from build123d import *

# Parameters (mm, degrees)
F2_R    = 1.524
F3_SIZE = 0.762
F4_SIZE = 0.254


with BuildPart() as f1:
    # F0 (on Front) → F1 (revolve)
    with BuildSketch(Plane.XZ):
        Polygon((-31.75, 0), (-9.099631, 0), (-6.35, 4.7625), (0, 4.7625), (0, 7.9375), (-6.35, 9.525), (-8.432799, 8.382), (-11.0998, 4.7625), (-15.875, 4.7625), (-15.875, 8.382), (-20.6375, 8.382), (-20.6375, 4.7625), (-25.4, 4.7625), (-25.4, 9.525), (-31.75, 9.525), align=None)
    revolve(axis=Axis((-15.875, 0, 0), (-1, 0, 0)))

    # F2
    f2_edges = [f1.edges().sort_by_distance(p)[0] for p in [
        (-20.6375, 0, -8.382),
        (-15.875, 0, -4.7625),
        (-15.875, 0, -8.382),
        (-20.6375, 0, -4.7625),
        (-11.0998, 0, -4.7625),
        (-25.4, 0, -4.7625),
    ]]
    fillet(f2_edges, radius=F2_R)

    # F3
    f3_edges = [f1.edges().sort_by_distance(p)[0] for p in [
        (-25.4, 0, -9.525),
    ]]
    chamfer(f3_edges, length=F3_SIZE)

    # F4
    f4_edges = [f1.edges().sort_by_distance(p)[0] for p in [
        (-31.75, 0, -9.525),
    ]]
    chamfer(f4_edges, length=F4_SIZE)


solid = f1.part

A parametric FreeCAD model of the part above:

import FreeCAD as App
import Part
import Sketcher

V = App.Vector
Q = App.Units.Quantity


def edges_at(feature, points):
    """Names of the edges that pass closest to the given points."""
    edges = feature.Shape.Edges
    near = lambda p: min(range(len(edges)), key=lambda i: edges[i].distToShape(Part.Vertex(*p))[0])
    return sorted({f"Edge{near(p) + 1}" for p in points})


def add_polygon(sketch, points):
    """Adds a closed chain of lines whose ends are joined by coincident constraints."""
    first, n = sketch.GeometryCount, len(points)
    for a, b in zip(points, points[1:] + points[:1]):
        sketch.addGeometry(Part.LineSegment(App.Vector(*a, 0), App.Vector(*b, 0)), False)
    for i in range(n):
        sketch.addConstraint(Sketcher.Constraint("Coincident", first + i, 2, first + (i + 1) % n, 1))

doc = App.newDocument("Part")
body = doc.addObject("PartDesign::Body", "Body")

sketch1 = body.newObject("Sketcher::SketchObject", "Sketch")
sketch1.AttachmentSupport = (doc.getObject("XZ_Plane"), [""])
sketch1.MapMode = "FlatFace"
add_polygon(sketch1, [(-31.8, 0), (-9.1, 0), (-6.3, 4.8), (0, 4.8), (0, 7.9), (-6.3, 9.5), (-8.4, 8.4), (-11.1, 4.8), (-15.9, 4.8), (-15.9, 8.4), (-20.6, 8.4), (-20.6, 4.8), (-25.4, 4.8), (-25.4, 9.5), (-31.8, 9.5)])
sketch1.addConstraint(Sketcher.Constraint("Horizontal", 0))
sketch1.addConstraint(Sketcher.Constraint("Horizontal", 2))
sketch1.addConstraint(Sketcher.Constraint("Vertical", 3))
sketch1.addConstraint(Sketcher.Constraint("Horizontal", 7))
sketch1.addConstraint(Sketcher.Constraint("Vertical", 8))
sketch1.addConstraint(Sketcher.Constraint("Horizontal", 9))
sketch1.addConstraint(Sketcher.Constraint("Vertical", 10))
sketch1.addConstraint(Sketcher.Constraint("Horizontal", 11))
sketch1.addConstraint(Sketcher.Constraint("Vertical", 12))
sketch1.addConstraint(Sketcher.Constraint("Horizontal", 13))
sketch1.addConstraint(Sketcher.Constraint("Vertical", 14))
sketch1.addConstraint(Sketcher.Constraint("PointOnObject", 0, 2, -1))
sketch1.addConstraint(Sketcher.Constraint("PointOnObject", 2, 2, -2))
sketch1.addConstraint(Sketcher.Constraint("Horizontal", 2, 2, 6, 2))
sketch1.addConstraint(Sketcher.Constraint("Horizontal", 5, 2, 8, 2))
sketch1.addConstraint(Sketcher.Constraint("Horizontal", 7, 2, 10, 2))
sketch1.addConstraint(Sketcher.Constraint("Horizontal", 4, 2, 12, 2))
sketch1.addConstraint(Sketcher.Constraint("Vertical", 1, 2, 4, 2))
sketch1.addConstraint(Sketcher.Constraint("Equal", 9, 11))
sketch1.addConstraint(Sketcher.Constraint("Equal", 2, 13))
sketch1.addConstraint(Sketcher.Constraint("Equal", 11, 12))
sketch1.addConstraint(Sketcher.Constraint("DistanceX", 11, 2, -1, 1, Q("1 in")))
sketch1.addConstraint(Sketcher.Constraint("Angle", 1, Q("59.999997 deg")))
sketch1.addConstraint(Sketcher.Constraint("DistanceX", 2, 1, 2, 2, Q("0.25 in")))
sketch1.addConstraint(Sketcher.Constraint("DistanceX", 7, 2, 7, 1, Q("0.188 in")))
sketch1.addConstraint(Sketcher.Constraint("DistanceX", 9, 2, 9, 1, Q("0.1875 in")))
sketch1.addConstraint(Sketcher.Constraint("DistanceY", 3, 1, 3, 2, Q("0.125 in")))
sketch1.addConstraint(Sketcher.Constraint("DistanceY", 14, 2, 14, 1, Q("0.375 in")))
sketch1.addConstraint(Sketcher.Constraint("DistanceY", -1, 1, 5, 2, Q("0.33 in")))
sketch1.addConstraint(Sketcher.Constraint("DistanceX", 5, 2, -1, 1, Q("0.332 in")))
revolution = body.newObject("PartDesign::Revolution", "Revolution")
revolution.Profile = sketch1
revolution.ReferenceAxis = (sketch1, ["H_Axis"])
revolution.Angle = 360
doc.recompute()

fillet = body.newObject("PartDesign::Fillet", "Fillet")
fillet.Base = (revolution, edges_at(revolution, [
    (-20.637, 0, -8.382),
    (-15.875, 0, -4.763),
    (-15.875, 0, -8.382),
    (-20.637, 0, -4.763),
    (-11.1, 0, -4.763),
    (-25.4, 0, -4.763),
]))
fillet.Radius = Q("0.06 in")
doc.recompute()

chamfer = body.newObject("PartDesign::Chamfer", "Chamfer")
chamfer.Base = (fillet, edges_at(fillet, [(-25.4, 0, -9.525)]))
chamfer.Size = Q("0.03 in")
doc.recompute()

chamfer2 = body.newObject("PartDesign::Chamfer", "Chamfer001")
chamfer2.Base = (chamfer, edges_at(chamfer, [(-31.75, 0, -9.525)]))
chamfer2.Size = Q("0.01 in")

doc.recompute()
